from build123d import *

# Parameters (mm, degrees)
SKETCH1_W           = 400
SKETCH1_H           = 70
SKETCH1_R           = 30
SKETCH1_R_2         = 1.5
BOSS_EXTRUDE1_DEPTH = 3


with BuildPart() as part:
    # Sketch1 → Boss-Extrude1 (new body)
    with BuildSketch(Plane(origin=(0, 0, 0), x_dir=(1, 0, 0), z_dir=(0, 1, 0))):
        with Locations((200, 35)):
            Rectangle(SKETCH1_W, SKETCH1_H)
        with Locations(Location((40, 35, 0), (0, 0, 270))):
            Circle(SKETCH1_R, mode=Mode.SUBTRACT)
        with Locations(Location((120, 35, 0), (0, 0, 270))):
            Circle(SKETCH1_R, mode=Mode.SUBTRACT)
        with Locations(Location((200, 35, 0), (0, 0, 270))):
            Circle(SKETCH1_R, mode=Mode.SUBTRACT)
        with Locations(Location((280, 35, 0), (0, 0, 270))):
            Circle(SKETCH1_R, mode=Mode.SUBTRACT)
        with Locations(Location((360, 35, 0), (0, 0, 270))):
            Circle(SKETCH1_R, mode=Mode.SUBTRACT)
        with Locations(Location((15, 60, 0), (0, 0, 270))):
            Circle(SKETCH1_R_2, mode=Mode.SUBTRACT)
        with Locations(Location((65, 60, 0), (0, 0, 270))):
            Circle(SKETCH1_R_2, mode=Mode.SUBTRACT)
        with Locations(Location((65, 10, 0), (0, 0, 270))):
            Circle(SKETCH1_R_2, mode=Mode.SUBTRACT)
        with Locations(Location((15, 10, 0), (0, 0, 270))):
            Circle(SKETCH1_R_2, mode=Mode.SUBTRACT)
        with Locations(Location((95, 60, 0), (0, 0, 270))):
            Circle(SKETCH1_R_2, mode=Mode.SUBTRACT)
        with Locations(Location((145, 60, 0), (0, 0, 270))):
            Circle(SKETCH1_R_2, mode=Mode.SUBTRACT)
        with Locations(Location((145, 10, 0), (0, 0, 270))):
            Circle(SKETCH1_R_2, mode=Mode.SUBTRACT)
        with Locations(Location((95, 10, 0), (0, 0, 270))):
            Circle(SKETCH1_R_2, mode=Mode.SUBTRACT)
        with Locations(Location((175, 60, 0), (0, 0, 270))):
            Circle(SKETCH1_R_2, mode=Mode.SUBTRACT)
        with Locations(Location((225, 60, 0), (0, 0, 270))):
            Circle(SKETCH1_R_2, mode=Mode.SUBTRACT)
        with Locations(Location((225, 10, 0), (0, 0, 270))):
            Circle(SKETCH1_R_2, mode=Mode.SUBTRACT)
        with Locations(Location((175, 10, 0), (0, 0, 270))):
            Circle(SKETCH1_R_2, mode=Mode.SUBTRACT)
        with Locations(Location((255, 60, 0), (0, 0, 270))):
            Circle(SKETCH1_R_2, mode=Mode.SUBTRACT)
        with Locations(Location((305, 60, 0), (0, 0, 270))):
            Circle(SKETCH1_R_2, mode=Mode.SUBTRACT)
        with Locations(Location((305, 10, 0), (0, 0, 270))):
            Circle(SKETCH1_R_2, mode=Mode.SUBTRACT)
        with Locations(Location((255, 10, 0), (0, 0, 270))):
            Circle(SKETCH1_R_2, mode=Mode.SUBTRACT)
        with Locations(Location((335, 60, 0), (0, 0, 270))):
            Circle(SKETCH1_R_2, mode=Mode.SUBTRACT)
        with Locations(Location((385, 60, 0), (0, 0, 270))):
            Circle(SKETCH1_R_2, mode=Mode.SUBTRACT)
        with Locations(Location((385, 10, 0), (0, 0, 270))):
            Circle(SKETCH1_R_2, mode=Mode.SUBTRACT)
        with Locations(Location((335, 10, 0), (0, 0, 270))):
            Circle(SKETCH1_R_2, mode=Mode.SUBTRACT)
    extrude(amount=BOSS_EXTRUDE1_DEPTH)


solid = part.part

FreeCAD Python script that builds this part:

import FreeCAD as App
import Part
import Sketcher

V = App.Vector
Q = App.Units.Quantity


def add_polygon(sketch, points):
    """Adds a closed chain of lines whose ends are joined by coincident constraints."""
    first, n = sketch.GeometryCount, len(points)
    for a, b in zip(points, points[1:] + points[:1]):
        sketch.addGeometry(Part.LineSegment(App.Vector(*a, 0), App.Vector(*b, 0)), False)
    for i in range(n):
        sketch.addConstraint(Sketcher.Constraint("Coincident", first + i, 2, first + (i + 1) % n, 1))

doc = App.newDocument("Part")
body = doc.addObject("PartDesign::Body", "Body")

sketch1 = doc.addObject("Sketcher::SketchObject", "Sketch")
body.addObject(sketch1)
sketch1.AttachmentSupport = (doc.XZ_Plane, [""])
sketch1.MapMode = "FlatFace"
add_polygon(sketch1, [(0, -70), (0, 0), (400, 0), (400, -70)])
sketch1.addGeometry(Part.Circle(V(15, -10, 0), V(0, 0, 1), 1.5), False)
sketch1.addGeometry(Part.Circle(V(65, -10, 0), V(0, 0, 1), 1.5), False)
sketch1.addGeometry(Part.Circle(V(95, -10, 0), V(0, 0, 1), 1.5), False)
sketch1.addGeometry(Part.Circle(V(145, -10, 0), V(0, 0, 1), 1.5), False)
sketch1.addGeometry(Part.Circle(V(175, -10, 0), V(0, 0, 1), 1.5), False)
sketch1.addGeometry(Part.Circle(V(225, -10, 0), V(0, 0, 1), 1.5), False)
sketch1.addGeometry(Part.Circle(V(255, -10, 0), V(0, 0, 1), 1.5), False)
sketch1.addGeometry(Part.Circle(V(305, -10, 0), V(0, 0, 1), 1.5), False)
sketch1.addGeometry(Part.Circle(V(335, -10, 0), V(0, 0, 1), 1.5), False)
sketch1.addGeometry(Part.Circle(V(385, -10, 0), V(0, 0, 1), 1.5), False)
sketch1.addGeometry(Part.Circle(V(40, -35, 0), V(0, 0, 1), 30), False)
sketch1.addGeometry(Part.Circle(V(120, -35, 0), V(0, 0, 1), 30), False)
sketch1.addGeometry(Part.Circle(V(15, -60, 0), V(0, 0, 1), 1.5), False)
sketch1.addGeometry(Part.Circle(V(65, -60, 0), V(0, 0, 1), 1.5), False)
sketch1.addGeometry(Part.Circle(V(95, -60, 0), V(0, 0, 1), 1.5), False)
sketch1.addGeometry(Part.Circle(V(145, -60, 0), V(0, 0, 1), 1.5), False)
sketch1.addGeometry(Part.Circle(V(175, -60, 0), V(0, 0, 1), 1.5), False)
sketch1.addGeometry(Part.Circle(V(200, -35, 0), V(0, 0, 1), 30), False)
sketch1.addGeometry(Part.Circle(V(280, -35, 0), V(0, 0, 1), 30), False)
sketch1.addGeometry(Part.Circle(V(360, -35, 0), V(0, 0, 1), 30), False)
sketch1.addGeometry(Part.Circle(V(225, -60, 0), V(0, 0, 1), 1.5), False)
sketch1.addGeometry(Part.Circle(V(255, -60, 0), V(0, 0, 1), 1.5), False)
sketch1.addGeometry(Part.Circle(V(305, -60, 0), V(0, 0, 1), 1.5), False)
sketch1.addGeometry(Part.Circle(V(335, -60, 0), V(0, 0, 1), 1.5), False)
sketch1.addGeometry(Part.Circle(V(385, -60, 0), V(0, 0, 1), 1.5), False)
sketch1.addConstraint(Sketcher.Constraint("Vertical", 0))
sketch1.addConstraint(Sketcher.Constraint("Horizontal", 1))
sketch1.addConstraint(Sketcher.Constraint("Vertical", 2))
sketch1.addConstraint(Sketcher.Constraint("Horizontal", 3))
sketch1.addConstraint(Sketcher.Constraint("Coincident", 0, 2, -1, 1))
sketch1.addConstraint(Sketcher.Constraint("Equal", 4, 5))
sketch1.addConstraint(Sketcher.Constraint("Equal", 5, 6))
sketch1.addConstraint(Sketcher.Constraint("Equal", 6, 7))
sketch1.addConstraint(Sketcher.Constraint("Equal", 7, 8))
sketch1.addConstraint(Sketcher.Constraint("Equal", 8, 9))
sketch1.addConstraint(Sketcher.Constraint("Equal", 9, 10))
sketch1.addConstraint(Sketcher.Constraint("Equal", 10, 11))
sketch1.addConstraint(Sketcher.Constraint("Equal", 11, 12))
sketch1.addConstraint(Sketcher.Constraint("Equal", 12, 13))
sketch1.addConstraint(Sketcher.Constraint("Equal", 14, 15))
sketch1.addConstraint(Sketcher.Constraint("Equal", 13, 16))
sketch1.addConstraint(Sketcher.Constraint("Equal", 16, 17))
sketch1.addConstraint(Sketcher.Constraint("Equal", 17, 18))
sketch1.addConstraint(Sketcher.Constraint("Equal", 18, 19))
sketch1.addConstraint(Sketcher.Constraint("Equal", 19, 20))
sketch1.addConstraint(Sketcher.Constraint("Equal", 15, 21))
sketch1.addConstraint(Sketcher.Constraint("Equal", 21, 22))
sketch1.addConstraint(Sketcher.Constraint("Equal", 22, 23))
sketch1.addConstraint(Sketcher.Constraint("Equal", 20, 24))
sketch1.addConstraint(Sketcher.Constraint("Equal", 24, 25))
sketch1.addConstraint(Sketcher.Constraint("Equal", 25, 26))
sketch1.addConstraint(Sketcher.Constraint("Equal", 26, 27))
sketch1.addConstraint(Sketcher.Constraint("Equal", 27, 28))
sketch1.addConstraint(Sketcher.Constraint("Horizontal", 4, 3, 5, 3))
sketch1.addConstraint(Sketcher.Constraint("Horizontal", 5, 3, 6, 3))
sketch1.addConstraint(Sketcher.Constraint("Horizontal", 6, 3, 7, 3))
sketch1.addConstraint(Sketcher.Constraint("Horizontal", 7, 3, 8, 3))
sketch1.addConstraint(Sketcher.Constraint("Horizontal", 8, 3, 9, 3))
sketch1.addConstraint(Sketcher.Constraint("Horizontal", 9, 3, 10, 3))
sketch1.addConstraint(Sketcher.Constraint("Horizontal", 10, 3, 11, 3))
sketch1.addConstraint(Sketcher.Constraint("Horizontal", 11, 3, 12, 3))
sketch1.addConstraint(Sketcher.Constraint("Horizontal", 12, 3, 13, 3))
sketch1.addConstraint(Sketcher.Constraint("Horizontal", 14, 3, 15, 3))
sketch1.addConstraint(Sketcher.Constraint("Horizontal", 16, 3, 17, 3))
sketch1.addConstraint(Sketcher.Constraint("Horizontal", 17, 3, 18, 3))
sketch1.addConstraint(Sketcher.Constraint("Horizontal", 18, 3, 19, 3))
sketch1.addConstraint(Sketcher.Constraint("Horizontal", 19, 3, 20, 3))
sketch1.addConstraint(Sketcher.Constraint("Horizontal", 15, 3, 21, 3))
sketch1.addConstraint(Sketcher.Constraint("Horizontal", 21, 3, 22, 3))
sketch1.addConstraint(Sketcher.Constraint("Horizontal", 22, 3, 23, 3))
sketch1.addConstraint(Sketcher.Constraint("Horizontal", 20, 3, 24, 3))
sketch1.addConstraint(Sketcher.Constraint("Horizontal", 24, 3, 25, 3))
sketch1.addConstraint(Sketcher.Constraint("Horizontal", 25, 3, 26, 3))
sketch1.addConstraint(Sketcher.Constraint("Horizontal", 26, 3, 27, 3))
sketch1.addConstraint(Sketcher.Constraint("Horizontal", 27, 3, 28, 3))
sketch1.addConstraint(Sketcher.Constraint("Vertical", 4, 3, 16, 3))
sketch1.addConstraint(Sketcher.Constraint("Vertical", 5, 3, 17, 3))
sketch1.addConstraint(Sketcher.Constraint("Vertical", 6, 3, 18, 3))
sketch1.addConstraint(Sketcher.Constraint("Vertical", 7, 3, 19, 3))
sketch1.addConstraint(Sketcher.Constraint("Vertical", 8, 3, 20, 3))
sketch1.addConstraint(Sketcher.Constraint("Vertical", 9, 3, 24, 3))
sketch1.addConstraint(Sketcher.Constraint("Vertical", 10, 3, 25, 3))
sketch1.addConstraint(Sketcher.Constraint("Vertical", 11, 3, 26, 3))
sketch1.addConstraint(Sketcher.Constraint("Vertical", 12, 3, 27, 3))
sketch1.addConstraint(Sketcher.Constraint("Vertical", 13, 3, 28, 3))
sketch1.addConstraint(Sketcher.Constraint("Diameter", 4, Q("3 mm")))
sketch1.addConstraint(Sketcher.Constraint("Diameter", 14, Q("60 mm")))
sketch1.addConstraint(Sketcher.Constraint("DistanceX", 1, 1, 1, 2, Q("400 mm")))
sketch1.addConstraint(Sketcher.Constraint("DistanceY", 0, 1, 0, 2, Q("70 mm")))
sketch1.addConstraint(Sketcher.Constraint("DistanceX", -1, 1, 4, 3, Q("15 mm")))
sketch1.addConstraint(Sketcher.Constraint("DistanceY", 4, 3, -1, 1, Q("10 mm")))
sketch1.addConstraint(Sketcher.Constraint("DistanceX", -1, 1, 5, 3, Q("65 mm")))
sketch1.addConstraint(Sketcher.Constraint("DistanceX", -1, 1, 6, 3, Q("95 mm")))
sketch1.addConstraint(Sketcher.Constraint("DistanceX", -1, 1, 7, 3, Q("145 mm")))
sketch1.addConstraint(Sketcher.Constraint("DistanceX", -1, 1, 8, 3, Q("175 mm")))
sketch1.addConstraint(Sketcher.Constraint("DistanceX", -1, 1, 9, 3, Q("225 mm")))
sketch1.addConstraint(Sketcher.Constraint("DistanceX", -1, 1, 10, 3, Q("255 mm")))
sketch1.addConstraint(Sketcher.Constraint("DistanceX", -1, 1, 11, 3, Q("305 mm")))
sketch1.addConstraint(Sketcher.Constraint("DistanceX", -1, 1, 12, 3, Q("335 mm")))
sketch1.addConstraint(Sketcher.Constraint("DistanceX", -1, 1, 13, 3, Q("385 mm")))
sketch1.addConstraint(Sketcher.Constraint("DistanceX", -1, 1, 14, 3, Q("40 mm")))
sketch1.addConstraint(Sketcher.Constraint("DistanceY", 14, 3, -1, 1, Q("35 mm")))
sketch1.addConstraint(Sketcher.Constraint("DistanceX", -1, 1, 15, 3, Q("120 mm")))
sketch1.addConstraint(Sketcher.Constraint("DistanceY", 16, 3, -1, 1, Q("60 mm")))
sketch1.addConstraint(Sketcher.Constraint("DistanceX", -1, 1, 21, 3, Q("200 mm")))
sketch1.addConstraint(Sketcher.Constraint("DistanceX", -1, 1, 22, 3, Q("280 mm")))
sketch1.addConstraint(Sketcher.Constraint("DistanceX", -1, 1, 23, 3, Q("360 mm")))
pad1 = doc.addObject("PartDesign::Pad", "Pad")
body.addObject(pad1)
pad1.Profile = sketch1
pad1.Length = 3
pad1.Reversed = True

doc.recompute()
